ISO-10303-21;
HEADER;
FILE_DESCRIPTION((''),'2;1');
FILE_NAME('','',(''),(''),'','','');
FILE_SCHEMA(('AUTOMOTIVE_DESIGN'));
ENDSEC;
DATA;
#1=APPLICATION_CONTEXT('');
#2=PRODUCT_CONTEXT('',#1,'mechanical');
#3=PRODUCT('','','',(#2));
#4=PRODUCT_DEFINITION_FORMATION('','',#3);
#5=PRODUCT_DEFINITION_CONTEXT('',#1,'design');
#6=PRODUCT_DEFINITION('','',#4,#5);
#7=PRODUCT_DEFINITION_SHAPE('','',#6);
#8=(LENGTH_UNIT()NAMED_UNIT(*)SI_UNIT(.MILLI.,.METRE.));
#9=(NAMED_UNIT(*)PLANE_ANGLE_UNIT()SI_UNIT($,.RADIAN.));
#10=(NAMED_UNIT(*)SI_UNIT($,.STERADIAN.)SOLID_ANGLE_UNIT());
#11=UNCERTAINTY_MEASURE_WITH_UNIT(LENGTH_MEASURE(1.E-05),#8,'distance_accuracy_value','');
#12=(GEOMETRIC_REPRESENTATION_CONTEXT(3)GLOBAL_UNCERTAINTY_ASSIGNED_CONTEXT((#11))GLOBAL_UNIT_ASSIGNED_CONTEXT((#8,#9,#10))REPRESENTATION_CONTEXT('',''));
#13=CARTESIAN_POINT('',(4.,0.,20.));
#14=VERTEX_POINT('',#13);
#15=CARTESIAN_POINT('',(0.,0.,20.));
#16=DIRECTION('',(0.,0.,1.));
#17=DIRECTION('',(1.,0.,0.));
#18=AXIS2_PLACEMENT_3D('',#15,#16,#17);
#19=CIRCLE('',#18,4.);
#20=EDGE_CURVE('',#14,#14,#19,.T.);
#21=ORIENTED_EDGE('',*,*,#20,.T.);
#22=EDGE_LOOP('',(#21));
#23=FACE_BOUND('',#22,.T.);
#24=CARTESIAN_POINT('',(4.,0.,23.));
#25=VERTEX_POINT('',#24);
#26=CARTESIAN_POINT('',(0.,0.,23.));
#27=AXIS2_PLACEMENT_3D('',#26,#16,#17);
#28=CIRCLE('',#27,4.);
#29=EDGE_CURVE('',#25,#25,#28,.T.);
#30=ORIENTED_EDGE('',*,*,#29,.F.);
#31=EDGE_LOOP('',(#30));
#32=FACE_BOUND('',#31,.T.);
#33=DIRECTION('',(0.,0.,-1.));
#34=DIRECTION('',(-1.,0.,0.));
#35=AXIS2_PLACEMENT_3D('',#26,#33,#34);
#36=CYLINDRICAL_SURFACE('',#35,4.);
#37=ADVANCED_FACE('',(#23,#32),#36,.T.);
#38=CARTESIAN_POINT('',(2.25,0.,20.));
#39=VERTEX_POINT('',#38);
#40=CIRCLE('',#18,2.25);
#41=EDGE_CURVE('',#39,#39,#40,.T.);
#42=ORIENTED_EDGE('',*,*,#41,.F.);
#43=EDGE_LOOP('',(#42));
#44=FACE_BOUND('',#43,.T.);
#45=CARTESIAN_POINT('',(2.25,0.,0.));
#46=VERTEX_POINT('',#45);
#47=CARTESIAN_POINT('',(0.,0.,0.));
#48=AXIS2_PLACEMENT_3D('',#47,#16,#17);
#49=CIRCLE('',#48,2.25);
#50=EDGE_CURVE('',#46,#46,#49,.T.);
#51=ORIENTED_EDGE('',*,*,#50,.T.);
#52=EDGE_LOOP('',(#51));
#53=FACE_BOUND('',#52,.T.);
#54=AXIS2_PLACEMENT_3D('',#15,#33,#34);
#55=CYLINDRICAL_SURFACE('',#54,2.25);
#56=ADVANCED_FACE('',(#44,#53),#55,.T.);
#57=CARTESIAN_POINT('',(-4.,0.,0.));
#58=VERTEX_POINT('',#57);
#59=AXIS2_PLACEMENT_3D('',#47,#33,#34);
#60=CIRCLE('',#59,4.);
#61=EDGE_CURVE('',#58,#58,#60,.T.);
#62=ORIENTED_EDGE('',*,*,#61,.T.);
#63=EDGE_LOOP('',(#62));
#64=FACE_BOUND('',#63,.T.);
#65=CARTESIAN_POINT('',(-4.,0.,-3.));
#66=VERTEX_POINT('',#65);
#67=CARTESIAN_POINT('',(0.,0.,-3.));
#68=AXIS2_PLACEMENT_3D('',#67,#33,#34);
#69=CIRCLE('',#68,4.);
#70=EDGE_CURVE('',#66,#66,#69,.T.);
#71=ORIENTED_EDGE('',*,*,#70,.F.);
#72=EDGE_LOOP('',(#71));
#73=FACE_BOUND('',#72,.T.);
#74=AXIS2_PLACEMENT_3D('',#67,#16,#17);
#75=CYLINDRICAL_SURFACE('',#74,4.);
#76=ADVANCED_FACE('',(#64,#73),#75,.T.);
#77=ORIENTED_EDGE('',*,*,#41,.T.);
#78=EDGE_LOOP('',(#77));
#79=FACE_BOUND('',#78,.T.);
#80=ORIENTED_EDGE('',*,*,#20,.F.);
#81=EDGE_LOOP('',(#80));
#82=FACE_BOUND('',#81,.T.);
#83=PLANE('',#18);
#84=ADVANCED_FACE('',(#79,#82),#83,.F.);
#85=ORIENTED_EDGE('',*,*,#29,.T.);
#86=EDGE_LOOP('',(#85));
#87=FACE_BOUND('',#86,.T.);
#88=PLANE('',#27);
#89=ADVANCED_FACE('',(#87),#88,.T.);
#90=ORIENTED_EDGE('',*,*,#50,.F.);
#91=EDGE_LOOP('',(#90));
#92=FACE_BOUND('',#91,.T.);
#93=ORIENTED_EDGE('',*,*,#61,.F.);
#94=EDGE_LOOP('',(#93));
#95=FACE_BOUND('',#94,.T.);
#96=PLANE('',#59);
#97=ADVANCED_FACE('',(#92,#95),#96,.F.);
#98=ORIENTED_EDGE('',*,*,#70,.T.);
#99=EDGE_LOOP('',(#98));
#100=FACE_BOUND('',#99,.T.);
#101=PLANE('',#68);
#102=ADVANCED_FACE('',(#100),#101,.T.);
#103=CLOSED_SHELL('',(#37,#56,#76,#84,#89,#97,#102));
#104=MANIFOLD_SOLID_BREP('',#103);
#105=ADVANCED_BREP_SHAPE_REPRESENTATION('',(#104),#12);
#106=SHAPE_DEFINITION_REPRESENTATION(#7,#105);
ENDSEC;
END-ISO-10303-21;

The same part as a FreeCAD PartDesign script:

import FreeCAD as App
import Part
import Sketcher

V = App.Vector

doc = App.newDocument("Part")
params = doc.addObject("Spreadsheet::Sheet", "Params")
for row, (alias, value) in enumerate([
    ("sketch1_diameter", "4.5 mm"),
    ("pad1_length", "20 mm"),
    ("sketch2_diameter", "8 mm"),
    ("pad2_length", "3 mm"),
    ("sketch3_diameter", "8 mm"),
    ("pad3_length", "3 mm"),
], start=1):
    params.set(f"A{row}", alias)
    params.set(f"B{row}", "=" + value)
    params.setAlias(f"B{row}", alias)

body = doc.addObject("PartDesign::Body", "Body")

# Sketch on XY plane
sketch1 = body.newObject("Sketcher::SketchObject", "Sketch")
sketch1.AttachmentSupport = (doc.getObject("XY_Plane"), [""])
sketch1.MapMode = "FlatFace"
sketch1.addGeometry(Part.Circle(V(0, 0, 0), V(0, 0, 1), 2.25), False)
sketch1.addConstraint(Sketcher.Constraint("Coincident", 0, 3, -1, 1))
sketch1.addConstraint(Sketcher.Constraint("Diameter", 0, 4.5))
sketch1.setExpression("Constraints[1]", "Params.sketch1_diameter")
pad1 = body.newObject("PartDesign::Pad", "Pad")
pad1.Profile = sketch1
pad1.setExpression("Length", "Params.pad1_length")

# Sketch on XY plane
sketch2 = body.newObject("Sketcher::SketchObject", "Sketch001")
sketch2.AttachmentSupport = (doc.getObject("XY_Plane"), [""])
sketch2.MapMode = "FlatFace"
sketch2.AttachmentOffset = App.Placement(V(0, 0, 20), App.Rotation())
sketch2.addGeometry(Part.Circle(V(0, 0, 0), V(0, 0, 1), 4), False)
sketch2.addConstraint(Sketcher.Constraint("Coincident", 0, 3, -1, 1))
sketch2.addConstraint(Sketcher.Constraint("Diameter", 0, 8.0))
sketch2.setExpression("Constraints[1]", "Params.sketch2_diameter")
pad2 = body.newObject("PartDesign::Pad", "Pad001")
pad2.Profile = sketch2
pad2.setExpression("Length", "Params.pad2_length")

# Sketch on XY plane
sketch3 = body.newObject("Sketcher::SketchObject", "Sketch002")
sketch3.AttachmentSupport = (doc.getObject("XY_Plane"), [""])
sketch3.MapMode = "FlatFace"
sketch3.AttachmentOffset = App.Placement(V(0, 0, -3), App.Rotation())
sketch3.addGeometry(Part.Circle(V(0, 0, 0), V(0, 0, 1), 4), False)
sketch3.addConstraint(Sketcher.Constraint("Coincident", 0, 3, -1, 1))
sketch3.addConstraint(Sketcher.Constraint("Diameter", 0, 8.0))
sketch3.setExpression("Constraints[1]", "Params.sketch3_diameter")
pad3 = body.newObject("PartDesign::Pad", "Pad002")
pad3.Profile = sketch3
pad3.setExpression("Length", "Params.pad3_length")

doc.recompute()
